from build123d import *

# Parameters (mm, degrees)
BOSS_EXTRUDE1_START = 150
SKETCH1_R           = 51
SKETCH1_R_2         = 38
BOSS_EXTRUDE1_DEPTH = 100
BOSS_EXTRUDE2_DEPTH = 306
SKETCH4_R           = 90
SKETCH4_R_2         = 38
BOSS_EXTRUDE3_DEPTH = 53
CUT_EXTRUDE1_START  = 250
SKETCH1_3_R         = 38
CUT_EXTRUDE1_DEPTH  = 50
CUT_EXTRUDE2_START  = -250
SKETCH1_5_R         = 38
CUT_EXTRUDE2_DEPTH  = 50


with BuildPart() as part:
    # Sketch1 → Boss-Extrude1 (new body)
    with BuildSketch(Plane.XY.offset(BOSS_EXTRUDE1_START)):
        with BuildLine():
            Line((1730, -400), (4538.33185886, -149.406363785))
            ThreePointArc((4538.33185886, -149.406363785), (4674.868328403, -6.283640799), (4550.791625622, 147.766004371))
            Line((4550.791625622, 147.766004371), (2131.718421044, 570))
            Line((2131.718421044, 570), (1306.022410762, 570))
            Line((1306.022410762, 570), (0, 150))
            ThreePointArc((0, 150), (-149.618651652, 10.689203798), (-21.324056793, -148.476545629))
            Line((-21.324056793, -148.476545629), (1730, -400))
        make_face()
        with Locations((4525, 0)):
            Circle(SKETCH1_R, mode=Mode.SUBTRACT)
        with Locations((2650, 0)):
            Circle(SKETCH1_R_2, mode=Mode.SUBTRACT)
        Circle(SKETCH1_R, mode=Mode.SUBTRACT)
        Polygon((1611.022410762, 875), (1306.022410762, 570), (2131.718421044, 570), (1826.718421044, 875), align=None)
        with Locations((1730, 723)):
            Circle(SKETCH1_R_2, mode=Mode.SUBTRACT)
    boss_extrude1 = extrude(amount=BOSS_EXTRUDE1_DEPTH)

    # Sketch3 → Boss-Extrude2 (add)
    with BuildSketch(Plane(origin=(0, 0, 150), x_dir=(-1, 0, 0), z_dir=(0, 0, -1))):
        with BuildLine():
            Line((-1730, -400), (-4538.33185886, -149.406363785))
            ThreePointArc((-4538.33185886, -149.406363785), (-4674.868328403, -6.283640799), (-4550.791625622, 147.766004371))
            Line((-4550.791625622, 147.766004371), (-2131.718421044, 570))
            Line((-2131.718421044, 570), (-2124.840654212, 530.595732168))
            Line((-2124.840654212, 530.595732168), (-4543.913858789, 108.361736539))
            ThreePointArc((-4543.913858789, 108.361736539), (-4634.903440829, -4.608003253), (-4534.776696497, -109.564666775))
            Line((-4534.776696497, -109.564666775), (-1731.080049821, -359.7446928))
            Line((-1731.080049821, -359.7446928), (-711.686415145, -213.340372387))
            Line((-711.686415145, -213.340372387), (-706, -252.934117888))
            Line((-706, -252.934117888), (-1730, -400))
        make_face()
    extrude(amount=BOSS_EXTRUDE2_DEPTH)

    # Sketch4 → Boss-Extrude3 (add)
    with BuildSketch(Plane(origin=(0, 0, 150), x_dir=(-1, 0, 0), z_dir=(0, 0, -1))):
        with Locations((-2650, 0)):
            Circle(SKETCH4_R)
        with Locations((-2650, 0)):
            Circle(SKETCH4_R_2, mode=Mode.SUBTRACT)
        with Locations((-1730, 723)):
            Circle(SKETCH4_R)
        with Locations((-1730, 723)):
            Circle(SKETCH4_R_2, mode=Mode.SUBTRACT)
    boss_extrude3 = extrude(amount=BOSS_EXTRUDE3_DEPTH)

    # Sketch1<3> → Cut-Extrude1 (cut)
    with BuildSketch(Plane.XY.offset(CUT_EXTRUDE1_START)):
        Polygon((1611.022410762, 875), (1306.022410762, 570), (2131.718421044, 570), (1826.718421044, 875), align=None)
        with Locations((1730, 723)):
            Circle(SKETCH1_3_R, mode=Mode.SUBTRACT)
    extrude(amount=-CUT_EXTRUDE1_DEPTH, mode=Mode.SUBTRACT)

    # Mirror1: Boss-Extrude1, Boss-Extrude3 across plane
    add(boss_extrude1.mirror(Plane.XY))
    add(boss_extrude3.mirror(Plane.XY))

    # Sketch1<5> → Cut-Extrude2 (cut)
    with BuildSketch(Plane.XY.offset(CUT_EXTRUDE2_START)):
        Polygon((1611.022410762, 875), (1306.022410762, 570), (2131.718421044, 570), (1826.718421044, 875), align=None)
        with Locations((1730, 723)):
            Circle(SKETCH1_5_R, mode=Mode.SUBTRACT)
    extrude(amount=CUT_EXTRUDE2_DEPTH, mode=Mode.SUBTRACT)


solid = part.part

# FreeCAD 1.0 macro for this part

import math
import FreeCAD as App
import Part
import Sketcher


def add_polygon(sketch, points):
    """Adds a closed chain of lines whose ends are joined by coincident constraints."""
    first, n = sketch.GeometryCount, len(points)
    for a, b in zip(points, points[1:] + points[:1]):
        sketch.addGeometry(Part.LineSegment(App.Vector(*a, 0), App.Vector(*b, 0)), False)
    for i in range(n):
        sketch.addConstraint(Sketcher.Constraint("Coincident", first + i, 2, first + (i + 1) % n, 1))

doc = App.newDocument("Part")
body = doc.addObject("PartDesign::Body", "Body")

# Sketch on XY plane
sketch1 = body.newObject("Sketcher::SketchObject", "Sketch")
sketch1.AttachmentSupport = (doc.getObject("XY_Plane"), [""])
sketch1.MapMode = "FlatFace"
sketch1.AttachmentOffset = App.Placement(App.Vector(0, 0, 150), App.Rotation())
sketch1.addGeometry([
    Part.LineSegment(App.Vector(1730, -400, 0), App.Vector(4538, -149, 0)),  # 0
    Part.ArcOfCircle(Part.Circle(App.Vector(4525, 0, 0), App.Vector(0, 0, 1), 150), math.radians(-85), math.radians(80)),  # 1
    Part.LineSegment(App.Vector(4551, 148, 0), App.Vector(2132, 570, 0)),  # 2
    Part.LineSegment(App.Vector(2132, 570, 0), App.Vector(1827, 875, 0)),  # 3
    Part.LineSegment(App.Vector(1827, 875, 0), App.Vector(1611, 875, 0)),  # 4
    Part.LineSegment(App.Vector(1611, 875, 0), App.Vector(1306, 570, 0)),  # 5
    Part.LineSegment(App.Vector(1306, 570, 0), App.Vector(0, 150, 0)),  # 6
    Part.ArcOfCircle(Part.Circle(App.Vector(0, 0, 0), App.Vector(0, 0, 1), 150), math.radians(90), math.radians(262)),  # 7
    Part.LineSegment(App.Vector(-21, -148, 0), App.Vector(1730, -400, 0)),  # 8
    Part.Circle(App.Vector(0, 0, 0), App.Vector(0, 0, 1), 51),  # 9
    Part.Circle(App.Vector(2650, 0, 0), App.Vector(0, 0, 1), 38),  # 10
    Part.Circle(App.Vector(4525, 0, 0), App.Vector(0, 0, 1), 51),  # 11
    Part.Circle(App.Vector(1730, 723, 0), App.Vector(0, 0, 1), 38),  # 12
], False)
sketch1.addConstraint([
    Sketcher.Constraint("Tangent", 0, 2, 1, 1),
    Sketcher.Constraint("Tangent", 1, 2, 2, 1),
    Sketcher.Constraint("Coincident", 2, 2, 3, 1),
    Sketcher.Constraint("Coincident", 3, 2, 4, 1),
    Sketcher.Constraint("Coincident", 4, 2, 5, 1),
    Sketcher.Constraint("Coincident", 5, 2, 6, 1),
    Sketcher.Constraint("Coincident", 6, 2, 7, 1),
    Sketcher.Constraint("Tangent", 7, 2, 8, 1),
    Sketcher.Constraint("Coincident", 8, 2, 0, 1),
    Sketcher.Constraint("Horizontal", 4),
    Sketcher.Constraint("Coincident", 7, 3, -1, 1),
    Sketcher.Constraint("Coincident", 9, 3, -1, 1),
    Sketcher.Constraint("Coincident", 11, 3, 1, 3),
    Sketcher.Constraint("Equal", 1, 7),
    Sketcher.Constraint("Equal", 9, 11),
    Sketcher.Constraint("Equal", 10, 12),
    Sketcher.Constraint("PointOnObject", 1, 3, -1),
    Sketcher.Constraint("PointOnObject", 10, 3, -1),
    Sketcher.Constraint("PointOnObject", 6, 2, -2),
    Sketcher.Constraint("Perpendicular", 3, 5),
    Sketcher.Constraint("Horizontal", 2, 2, 5, 2),
    Sketcher.Constraint("Vertical", 12, 3, 8, 2),
    Sketcher.Constraint("Equal", 3, 5),
    Sketcher.Constraint("Diameter", 9, 102.0),
    Sketcher.Constraint("Diameter", 10, 76.0),
    Sketcher.Constraint("Radius", 1, 150.0),
    Sketcher.Constraint("DistanceX", -1, 1, 1, 3, 4525.0),
    Sketcher.Constraint("DistanceX", -1, 1, 10, 3, 2650.0),
    Sketcher.Constraint("DistanceX", -1, 1, 12, 3, 1730.0),
    Sketcher.Constraint("DistanceY", -1, 1, 12, 3, 723.0),
    Sketcher.Constraint("DistanceY", -1, 1, 2, 2, 570.0),
    Sketcher.Constraint("DistanceY", -1, 1, 3, 2, 875.0),
    Sketcher.Constraint("DistanceY", 8, 2, -1, 1, 400.0),
    Sketcher.Constraint("DistanceX", 4, 2, 4, 1, 215.69601),
    Sketcher.Constraint("DistanceX", -1, 1, 2, 2, 2131.718421),
])
pad1 = body.newObject("PartDesign::Pad", "Pad")
pad1.Profile = sketch1
pad1.Length = 100

# Sketch on XY plane
sketch2 = body.newObject("Sketcher::SketchObject", "Sketch001")
sketch2.AttachmentSupport = (doc.getObject("XY_Plane"), [""])
sketch2.MapMode = "FlatFace"
sketch2.AttachmentOffset = App.Placement(App.Vector(0, 0, 150), App.Rotation())
sketch2.addGeometry([
    Part.LineSegment(App.Vector(4538, -149, 0), App.Vector(1730, -400, 0)),  # 0
    Part.LineSegment(App.Vector(1730, -400, 0), App.Vector(706, -253, 0)),  # 1
    Part.LineSegment(App.Vector(706, -253, 0), App.Vector(712, -213, 0)),  # 2
    Part.LineSegment(App.Vector(712, -213, 0), App.Vector(1731, -360, 0)),  # 3
    Part.LineSegment(App.Vector(1731, -360, 0), App.Vector(4535, -110, 0)),  # 4
    Part.ArcOfCircle(Part.Circle(App.Vector(4525, 0, 0), App.Vector(0, 0, 1), 110), math.radians(-85), math.radians(80)),  # 5
    Part.LineSegment(App.Vector(4544, 108, 0), App.Vector(2125, 531, 0)),  # 6
    Part.LineSegment(App.Vector(2125, 531, 0), App.Vector(2132, 570, 0)),  # 7
    Part.LineSegment(App.Vector(2132, 570, 0), App.Vector(4551, 148, 0)),  # 8
    Part.ArcOfCircle(Part.Circle(App.Vector(4525, 0, 0), App.Vector(0, 0, 1), 150), math.radians(-85), math.radians(80)),  # 9
], False)
sketch2.addConstraint([
    Sketcher.Constraint("Coincident", 0, 2, 1, 1),
    Sketcher.Constraint("Coincident", 1, 2, 2, 1),
    Sketcher.Constraint("Coincident", 2, 2, 3, 1),
    Sketcher.Constraint("Coincident", 3, 2, 4, 1),
    Sketcher.Constraint("Tangent", 4, 2, 5, 1),
    Sketcher.Constraint("Tangent", 5, 2, 6, 1),
    Sketcher.Constraint("Coincident", 6, 2, 7, 1),
    Sketcher.Constraint("Coincident", 7, 2, 8, 1),
    Sketcher.Constraint("Tangent", 8, 2, 9, 2),
    Sketcher.Constraint("Tangent", 9, 1, 0, 1),
    Sketcher.Constraint("Coincident", 9, 3, 5, 3),
    Sketcher.Constraint("PointOnObject", 5, 3, -1),
    Sketcher.Constraint("Perpendicular", 1, 2),
    Sketcher.Constraint("Perpendicular", 2, 3),
    Sketcher.Constraint("Parallel", 0, 4),
    Sketcher.Constraint("Perpendicular", 6, 7),
    Sketcher.Constraint("Perpendicular", 7, 8),
    Sketcher.Constraint("Equal", 2, 7),
    Sketcher.Constraint("Radius", 5, 110.0),
    Sketcher.Constraint("Radius", 9, 150.0),
    Sketcher.Constraint("DistanceX", -1, 1, 5, 3, 4525.0),
    Sketcher.Constraint("DistanceX", -1, 1, 0, 2, 1730.0),
    Sketcher.Constraint("DistanceY", 0, 2, -1, 1, 400.0),
    Sketcher.Constraint("DistanceX", -1, 1, 1, 2, 706.0),
    Sketcher.Constraint("DistanceY", -1, 1, 7, 2, 570.0),
    Sketcher.Constraint("DistanceX", -1, 1, 3, 2, 1731.08005),
    Sketcher.Constraint("DistanceX", -1, 1, 7, 2, 2131.718421),
])
pad2 = body.newObject("PartDesign::Pad", "Pad001")
pad2.Profile = sketch2
pad2.Length = 306
pad2.Reversed = True

# Sketch on XY plane
sketch3 = body.newObject("Sketcher::SketchObject", "Sketch002")
sketch3.AttachmentSupport = (doc.getObject("XY_Plane"), [""])
sketch3.MapMode = "FlatFace"
sketch3.AttachmentOffset = App.Placement(App.Vector(0, 0, 150), App.Rotation())
sketch3.addGeometry([
    Part.Circle(App.Vector(2650, 0, 0), App.Vector(0, 0, 1), 90),
    Part.Circle(App.Vector(2650, 0, 0), App.Vector(0, 0, 1), 38),
    Part.Circle(App.Vector(1730, 723, 0), App.Vector(0, 0, 1), 90),
    Part.Circle(App.Vector(1730, 723, 0), App.Vector(0, 0, 1), 38),
], False)
sketch3.addConstraint([
    Sketcher.Constraint("Coincident", 1, 3, 0, 3),
    Sketcher.Constraint("Coincident", 3, 3, 2, 3),
    Sketcher.Constraint("Equal", 0, 2),
    Sketcher.Constraint("Equal", 1, 3),
    Sketcher.Constraint("PointOnObject", 0, 3, -1),
    Sketcher.Constraint("Diameter", 0, 180.0),
    Sketcher.Constraint("Diameter", 1, 76.0),
    Sketcher.Constraint("DistanceX", -1, 1, 0, 3, 2650.0),
    Sketcher.Constraint("DistanceX", -1, 1, 2, 3, 1730.0),
    Sketcher.Constraint("DistanceY", -1, 1, 2, 3, 723.0),
])
pad3 = body.newObject("PartDesign::Pad", "Pad002")
pad3.Profile = sketch3
pad3.Length = 53
pad3.Reversed = True

# Sketch on XY plane
sketch4 = body.newObject("Sketcher::SketchObject", "Sketch003")
sketch4.AttachmentSupport = (doc.getObject("XY_Plane"), [""])
sketch4.MapMode = "FlatFace"
sketch4.AttachmentOffset = App.Placement(App.Vector(0, 0, 250), App.Rotation())
add_polygon(sketch4, [(1611, 875), (1306, 570), (2132, 570), (1827, 875)])  # lines 0-3
sketch4.addGeometry(Part.Circle(App.Vector(1730, 723, 0), App.Vector(0, 0, 1), 38), False)  # 4
sketch4.addConstraint([
    Sketcher.Constraint("Horizontal", 1),
    Sketcher.Constraint("Horizontal", 3),
    Sketcher.Constraint("Perpendicular", 0, 2),
    Sketcher.Constraint("Equal", 0, 2),
    Sketcher.Constraint("Diameter", 4, 76.0),
    Sketcher.Constraint("DistanceX", -1, 1, 4, 3, 1730.0),
    Sketcher.Constraint("DistanceY", -1, 1, 4, 3, 723.0),
    Sketcher.Constraint("DistanceY", -1, 1, 0, 2, 570.0),
    Sketcher.Constraint("DistanceY", -1, 1, 2, 2, 875.0),
    Sketcher.Constraint("DistanceX", 1, 1, 1, 2, 825.69601),
    Sketcher.Constraint("DistanceX", -1, 1, 0, 2, 1306.022411),
])
pocket1 = body.newObject("PartDesign::Pocket", "Pocket")
pocket1.Profile = sketch4
pocket1.Length = 50
doc.recompute()

mirrored = body.newObject("PartDesign::Mirrored", "Mirrored")
mirrored.Originals = [pad1, pad3]
mirrored.MirrorPlane = (doc.getObject("XY_Plane"), [""])
body.Tip = mirrored

# Sketch on XY plane
sketch5 = body.newObject("Sketcher::SketchObject", "Sketch004")
sketch5.AttachmentSupport = (doc.getObject("XY_Plane"), [""])
sketch5.MapMode = "FlatFace"
sketch5.AttachmentOffset = App.Placement(App.Vector(0, 0, -250), App.Rotation())
add_polygon(sketch5, [(1611, 875), (1306, 570), (2132, 570), (1827, 875)])  # lines 0-3
sketch5.addGeometry(Part.Circle(App.Vector(1730, 723, 0), App.Vector(0, 0, 1), 38), False)  # 4
sketch5.addConstraint([
    Sketcher.Constraint("Horizontal", 1),
    Sketcher.Constraint("Horizontal", 3),
    Sketcher.Constraint("Perpendicular", 0, 2),
    Sketcher.Constraint("Equal", 0, 2),
    Sketcher.Constraint("Diameter", 4, 76.0),
    Sketcher.Constraint("DistanceX", -1, 1, 4, 3, 1730.0),
    Sketcher.Constraint("DistanceY", -1, 1, 4, 3, 723.0),
    Sketcher.Constraint("DistanceY", -1, 1, 0, 2, 570.0),
    Sketcher.Constraint("DistanceY", -1, 1, 2, 2, 875.0),
    Sketcher.Constraint("DistanceX", 1, 1, 1, 2, 825.69601),
    Sketcher.Constraint("DistanceX", -1, 1, 0, 2, 1306.022411),
])
pocket2 = body.newObject("PartDesign::Pocket", "Pocket001")
pocket2.Profile = sketch5
pocket2.Length = 50
pocket2.Reversed = True

doc.recompute()
